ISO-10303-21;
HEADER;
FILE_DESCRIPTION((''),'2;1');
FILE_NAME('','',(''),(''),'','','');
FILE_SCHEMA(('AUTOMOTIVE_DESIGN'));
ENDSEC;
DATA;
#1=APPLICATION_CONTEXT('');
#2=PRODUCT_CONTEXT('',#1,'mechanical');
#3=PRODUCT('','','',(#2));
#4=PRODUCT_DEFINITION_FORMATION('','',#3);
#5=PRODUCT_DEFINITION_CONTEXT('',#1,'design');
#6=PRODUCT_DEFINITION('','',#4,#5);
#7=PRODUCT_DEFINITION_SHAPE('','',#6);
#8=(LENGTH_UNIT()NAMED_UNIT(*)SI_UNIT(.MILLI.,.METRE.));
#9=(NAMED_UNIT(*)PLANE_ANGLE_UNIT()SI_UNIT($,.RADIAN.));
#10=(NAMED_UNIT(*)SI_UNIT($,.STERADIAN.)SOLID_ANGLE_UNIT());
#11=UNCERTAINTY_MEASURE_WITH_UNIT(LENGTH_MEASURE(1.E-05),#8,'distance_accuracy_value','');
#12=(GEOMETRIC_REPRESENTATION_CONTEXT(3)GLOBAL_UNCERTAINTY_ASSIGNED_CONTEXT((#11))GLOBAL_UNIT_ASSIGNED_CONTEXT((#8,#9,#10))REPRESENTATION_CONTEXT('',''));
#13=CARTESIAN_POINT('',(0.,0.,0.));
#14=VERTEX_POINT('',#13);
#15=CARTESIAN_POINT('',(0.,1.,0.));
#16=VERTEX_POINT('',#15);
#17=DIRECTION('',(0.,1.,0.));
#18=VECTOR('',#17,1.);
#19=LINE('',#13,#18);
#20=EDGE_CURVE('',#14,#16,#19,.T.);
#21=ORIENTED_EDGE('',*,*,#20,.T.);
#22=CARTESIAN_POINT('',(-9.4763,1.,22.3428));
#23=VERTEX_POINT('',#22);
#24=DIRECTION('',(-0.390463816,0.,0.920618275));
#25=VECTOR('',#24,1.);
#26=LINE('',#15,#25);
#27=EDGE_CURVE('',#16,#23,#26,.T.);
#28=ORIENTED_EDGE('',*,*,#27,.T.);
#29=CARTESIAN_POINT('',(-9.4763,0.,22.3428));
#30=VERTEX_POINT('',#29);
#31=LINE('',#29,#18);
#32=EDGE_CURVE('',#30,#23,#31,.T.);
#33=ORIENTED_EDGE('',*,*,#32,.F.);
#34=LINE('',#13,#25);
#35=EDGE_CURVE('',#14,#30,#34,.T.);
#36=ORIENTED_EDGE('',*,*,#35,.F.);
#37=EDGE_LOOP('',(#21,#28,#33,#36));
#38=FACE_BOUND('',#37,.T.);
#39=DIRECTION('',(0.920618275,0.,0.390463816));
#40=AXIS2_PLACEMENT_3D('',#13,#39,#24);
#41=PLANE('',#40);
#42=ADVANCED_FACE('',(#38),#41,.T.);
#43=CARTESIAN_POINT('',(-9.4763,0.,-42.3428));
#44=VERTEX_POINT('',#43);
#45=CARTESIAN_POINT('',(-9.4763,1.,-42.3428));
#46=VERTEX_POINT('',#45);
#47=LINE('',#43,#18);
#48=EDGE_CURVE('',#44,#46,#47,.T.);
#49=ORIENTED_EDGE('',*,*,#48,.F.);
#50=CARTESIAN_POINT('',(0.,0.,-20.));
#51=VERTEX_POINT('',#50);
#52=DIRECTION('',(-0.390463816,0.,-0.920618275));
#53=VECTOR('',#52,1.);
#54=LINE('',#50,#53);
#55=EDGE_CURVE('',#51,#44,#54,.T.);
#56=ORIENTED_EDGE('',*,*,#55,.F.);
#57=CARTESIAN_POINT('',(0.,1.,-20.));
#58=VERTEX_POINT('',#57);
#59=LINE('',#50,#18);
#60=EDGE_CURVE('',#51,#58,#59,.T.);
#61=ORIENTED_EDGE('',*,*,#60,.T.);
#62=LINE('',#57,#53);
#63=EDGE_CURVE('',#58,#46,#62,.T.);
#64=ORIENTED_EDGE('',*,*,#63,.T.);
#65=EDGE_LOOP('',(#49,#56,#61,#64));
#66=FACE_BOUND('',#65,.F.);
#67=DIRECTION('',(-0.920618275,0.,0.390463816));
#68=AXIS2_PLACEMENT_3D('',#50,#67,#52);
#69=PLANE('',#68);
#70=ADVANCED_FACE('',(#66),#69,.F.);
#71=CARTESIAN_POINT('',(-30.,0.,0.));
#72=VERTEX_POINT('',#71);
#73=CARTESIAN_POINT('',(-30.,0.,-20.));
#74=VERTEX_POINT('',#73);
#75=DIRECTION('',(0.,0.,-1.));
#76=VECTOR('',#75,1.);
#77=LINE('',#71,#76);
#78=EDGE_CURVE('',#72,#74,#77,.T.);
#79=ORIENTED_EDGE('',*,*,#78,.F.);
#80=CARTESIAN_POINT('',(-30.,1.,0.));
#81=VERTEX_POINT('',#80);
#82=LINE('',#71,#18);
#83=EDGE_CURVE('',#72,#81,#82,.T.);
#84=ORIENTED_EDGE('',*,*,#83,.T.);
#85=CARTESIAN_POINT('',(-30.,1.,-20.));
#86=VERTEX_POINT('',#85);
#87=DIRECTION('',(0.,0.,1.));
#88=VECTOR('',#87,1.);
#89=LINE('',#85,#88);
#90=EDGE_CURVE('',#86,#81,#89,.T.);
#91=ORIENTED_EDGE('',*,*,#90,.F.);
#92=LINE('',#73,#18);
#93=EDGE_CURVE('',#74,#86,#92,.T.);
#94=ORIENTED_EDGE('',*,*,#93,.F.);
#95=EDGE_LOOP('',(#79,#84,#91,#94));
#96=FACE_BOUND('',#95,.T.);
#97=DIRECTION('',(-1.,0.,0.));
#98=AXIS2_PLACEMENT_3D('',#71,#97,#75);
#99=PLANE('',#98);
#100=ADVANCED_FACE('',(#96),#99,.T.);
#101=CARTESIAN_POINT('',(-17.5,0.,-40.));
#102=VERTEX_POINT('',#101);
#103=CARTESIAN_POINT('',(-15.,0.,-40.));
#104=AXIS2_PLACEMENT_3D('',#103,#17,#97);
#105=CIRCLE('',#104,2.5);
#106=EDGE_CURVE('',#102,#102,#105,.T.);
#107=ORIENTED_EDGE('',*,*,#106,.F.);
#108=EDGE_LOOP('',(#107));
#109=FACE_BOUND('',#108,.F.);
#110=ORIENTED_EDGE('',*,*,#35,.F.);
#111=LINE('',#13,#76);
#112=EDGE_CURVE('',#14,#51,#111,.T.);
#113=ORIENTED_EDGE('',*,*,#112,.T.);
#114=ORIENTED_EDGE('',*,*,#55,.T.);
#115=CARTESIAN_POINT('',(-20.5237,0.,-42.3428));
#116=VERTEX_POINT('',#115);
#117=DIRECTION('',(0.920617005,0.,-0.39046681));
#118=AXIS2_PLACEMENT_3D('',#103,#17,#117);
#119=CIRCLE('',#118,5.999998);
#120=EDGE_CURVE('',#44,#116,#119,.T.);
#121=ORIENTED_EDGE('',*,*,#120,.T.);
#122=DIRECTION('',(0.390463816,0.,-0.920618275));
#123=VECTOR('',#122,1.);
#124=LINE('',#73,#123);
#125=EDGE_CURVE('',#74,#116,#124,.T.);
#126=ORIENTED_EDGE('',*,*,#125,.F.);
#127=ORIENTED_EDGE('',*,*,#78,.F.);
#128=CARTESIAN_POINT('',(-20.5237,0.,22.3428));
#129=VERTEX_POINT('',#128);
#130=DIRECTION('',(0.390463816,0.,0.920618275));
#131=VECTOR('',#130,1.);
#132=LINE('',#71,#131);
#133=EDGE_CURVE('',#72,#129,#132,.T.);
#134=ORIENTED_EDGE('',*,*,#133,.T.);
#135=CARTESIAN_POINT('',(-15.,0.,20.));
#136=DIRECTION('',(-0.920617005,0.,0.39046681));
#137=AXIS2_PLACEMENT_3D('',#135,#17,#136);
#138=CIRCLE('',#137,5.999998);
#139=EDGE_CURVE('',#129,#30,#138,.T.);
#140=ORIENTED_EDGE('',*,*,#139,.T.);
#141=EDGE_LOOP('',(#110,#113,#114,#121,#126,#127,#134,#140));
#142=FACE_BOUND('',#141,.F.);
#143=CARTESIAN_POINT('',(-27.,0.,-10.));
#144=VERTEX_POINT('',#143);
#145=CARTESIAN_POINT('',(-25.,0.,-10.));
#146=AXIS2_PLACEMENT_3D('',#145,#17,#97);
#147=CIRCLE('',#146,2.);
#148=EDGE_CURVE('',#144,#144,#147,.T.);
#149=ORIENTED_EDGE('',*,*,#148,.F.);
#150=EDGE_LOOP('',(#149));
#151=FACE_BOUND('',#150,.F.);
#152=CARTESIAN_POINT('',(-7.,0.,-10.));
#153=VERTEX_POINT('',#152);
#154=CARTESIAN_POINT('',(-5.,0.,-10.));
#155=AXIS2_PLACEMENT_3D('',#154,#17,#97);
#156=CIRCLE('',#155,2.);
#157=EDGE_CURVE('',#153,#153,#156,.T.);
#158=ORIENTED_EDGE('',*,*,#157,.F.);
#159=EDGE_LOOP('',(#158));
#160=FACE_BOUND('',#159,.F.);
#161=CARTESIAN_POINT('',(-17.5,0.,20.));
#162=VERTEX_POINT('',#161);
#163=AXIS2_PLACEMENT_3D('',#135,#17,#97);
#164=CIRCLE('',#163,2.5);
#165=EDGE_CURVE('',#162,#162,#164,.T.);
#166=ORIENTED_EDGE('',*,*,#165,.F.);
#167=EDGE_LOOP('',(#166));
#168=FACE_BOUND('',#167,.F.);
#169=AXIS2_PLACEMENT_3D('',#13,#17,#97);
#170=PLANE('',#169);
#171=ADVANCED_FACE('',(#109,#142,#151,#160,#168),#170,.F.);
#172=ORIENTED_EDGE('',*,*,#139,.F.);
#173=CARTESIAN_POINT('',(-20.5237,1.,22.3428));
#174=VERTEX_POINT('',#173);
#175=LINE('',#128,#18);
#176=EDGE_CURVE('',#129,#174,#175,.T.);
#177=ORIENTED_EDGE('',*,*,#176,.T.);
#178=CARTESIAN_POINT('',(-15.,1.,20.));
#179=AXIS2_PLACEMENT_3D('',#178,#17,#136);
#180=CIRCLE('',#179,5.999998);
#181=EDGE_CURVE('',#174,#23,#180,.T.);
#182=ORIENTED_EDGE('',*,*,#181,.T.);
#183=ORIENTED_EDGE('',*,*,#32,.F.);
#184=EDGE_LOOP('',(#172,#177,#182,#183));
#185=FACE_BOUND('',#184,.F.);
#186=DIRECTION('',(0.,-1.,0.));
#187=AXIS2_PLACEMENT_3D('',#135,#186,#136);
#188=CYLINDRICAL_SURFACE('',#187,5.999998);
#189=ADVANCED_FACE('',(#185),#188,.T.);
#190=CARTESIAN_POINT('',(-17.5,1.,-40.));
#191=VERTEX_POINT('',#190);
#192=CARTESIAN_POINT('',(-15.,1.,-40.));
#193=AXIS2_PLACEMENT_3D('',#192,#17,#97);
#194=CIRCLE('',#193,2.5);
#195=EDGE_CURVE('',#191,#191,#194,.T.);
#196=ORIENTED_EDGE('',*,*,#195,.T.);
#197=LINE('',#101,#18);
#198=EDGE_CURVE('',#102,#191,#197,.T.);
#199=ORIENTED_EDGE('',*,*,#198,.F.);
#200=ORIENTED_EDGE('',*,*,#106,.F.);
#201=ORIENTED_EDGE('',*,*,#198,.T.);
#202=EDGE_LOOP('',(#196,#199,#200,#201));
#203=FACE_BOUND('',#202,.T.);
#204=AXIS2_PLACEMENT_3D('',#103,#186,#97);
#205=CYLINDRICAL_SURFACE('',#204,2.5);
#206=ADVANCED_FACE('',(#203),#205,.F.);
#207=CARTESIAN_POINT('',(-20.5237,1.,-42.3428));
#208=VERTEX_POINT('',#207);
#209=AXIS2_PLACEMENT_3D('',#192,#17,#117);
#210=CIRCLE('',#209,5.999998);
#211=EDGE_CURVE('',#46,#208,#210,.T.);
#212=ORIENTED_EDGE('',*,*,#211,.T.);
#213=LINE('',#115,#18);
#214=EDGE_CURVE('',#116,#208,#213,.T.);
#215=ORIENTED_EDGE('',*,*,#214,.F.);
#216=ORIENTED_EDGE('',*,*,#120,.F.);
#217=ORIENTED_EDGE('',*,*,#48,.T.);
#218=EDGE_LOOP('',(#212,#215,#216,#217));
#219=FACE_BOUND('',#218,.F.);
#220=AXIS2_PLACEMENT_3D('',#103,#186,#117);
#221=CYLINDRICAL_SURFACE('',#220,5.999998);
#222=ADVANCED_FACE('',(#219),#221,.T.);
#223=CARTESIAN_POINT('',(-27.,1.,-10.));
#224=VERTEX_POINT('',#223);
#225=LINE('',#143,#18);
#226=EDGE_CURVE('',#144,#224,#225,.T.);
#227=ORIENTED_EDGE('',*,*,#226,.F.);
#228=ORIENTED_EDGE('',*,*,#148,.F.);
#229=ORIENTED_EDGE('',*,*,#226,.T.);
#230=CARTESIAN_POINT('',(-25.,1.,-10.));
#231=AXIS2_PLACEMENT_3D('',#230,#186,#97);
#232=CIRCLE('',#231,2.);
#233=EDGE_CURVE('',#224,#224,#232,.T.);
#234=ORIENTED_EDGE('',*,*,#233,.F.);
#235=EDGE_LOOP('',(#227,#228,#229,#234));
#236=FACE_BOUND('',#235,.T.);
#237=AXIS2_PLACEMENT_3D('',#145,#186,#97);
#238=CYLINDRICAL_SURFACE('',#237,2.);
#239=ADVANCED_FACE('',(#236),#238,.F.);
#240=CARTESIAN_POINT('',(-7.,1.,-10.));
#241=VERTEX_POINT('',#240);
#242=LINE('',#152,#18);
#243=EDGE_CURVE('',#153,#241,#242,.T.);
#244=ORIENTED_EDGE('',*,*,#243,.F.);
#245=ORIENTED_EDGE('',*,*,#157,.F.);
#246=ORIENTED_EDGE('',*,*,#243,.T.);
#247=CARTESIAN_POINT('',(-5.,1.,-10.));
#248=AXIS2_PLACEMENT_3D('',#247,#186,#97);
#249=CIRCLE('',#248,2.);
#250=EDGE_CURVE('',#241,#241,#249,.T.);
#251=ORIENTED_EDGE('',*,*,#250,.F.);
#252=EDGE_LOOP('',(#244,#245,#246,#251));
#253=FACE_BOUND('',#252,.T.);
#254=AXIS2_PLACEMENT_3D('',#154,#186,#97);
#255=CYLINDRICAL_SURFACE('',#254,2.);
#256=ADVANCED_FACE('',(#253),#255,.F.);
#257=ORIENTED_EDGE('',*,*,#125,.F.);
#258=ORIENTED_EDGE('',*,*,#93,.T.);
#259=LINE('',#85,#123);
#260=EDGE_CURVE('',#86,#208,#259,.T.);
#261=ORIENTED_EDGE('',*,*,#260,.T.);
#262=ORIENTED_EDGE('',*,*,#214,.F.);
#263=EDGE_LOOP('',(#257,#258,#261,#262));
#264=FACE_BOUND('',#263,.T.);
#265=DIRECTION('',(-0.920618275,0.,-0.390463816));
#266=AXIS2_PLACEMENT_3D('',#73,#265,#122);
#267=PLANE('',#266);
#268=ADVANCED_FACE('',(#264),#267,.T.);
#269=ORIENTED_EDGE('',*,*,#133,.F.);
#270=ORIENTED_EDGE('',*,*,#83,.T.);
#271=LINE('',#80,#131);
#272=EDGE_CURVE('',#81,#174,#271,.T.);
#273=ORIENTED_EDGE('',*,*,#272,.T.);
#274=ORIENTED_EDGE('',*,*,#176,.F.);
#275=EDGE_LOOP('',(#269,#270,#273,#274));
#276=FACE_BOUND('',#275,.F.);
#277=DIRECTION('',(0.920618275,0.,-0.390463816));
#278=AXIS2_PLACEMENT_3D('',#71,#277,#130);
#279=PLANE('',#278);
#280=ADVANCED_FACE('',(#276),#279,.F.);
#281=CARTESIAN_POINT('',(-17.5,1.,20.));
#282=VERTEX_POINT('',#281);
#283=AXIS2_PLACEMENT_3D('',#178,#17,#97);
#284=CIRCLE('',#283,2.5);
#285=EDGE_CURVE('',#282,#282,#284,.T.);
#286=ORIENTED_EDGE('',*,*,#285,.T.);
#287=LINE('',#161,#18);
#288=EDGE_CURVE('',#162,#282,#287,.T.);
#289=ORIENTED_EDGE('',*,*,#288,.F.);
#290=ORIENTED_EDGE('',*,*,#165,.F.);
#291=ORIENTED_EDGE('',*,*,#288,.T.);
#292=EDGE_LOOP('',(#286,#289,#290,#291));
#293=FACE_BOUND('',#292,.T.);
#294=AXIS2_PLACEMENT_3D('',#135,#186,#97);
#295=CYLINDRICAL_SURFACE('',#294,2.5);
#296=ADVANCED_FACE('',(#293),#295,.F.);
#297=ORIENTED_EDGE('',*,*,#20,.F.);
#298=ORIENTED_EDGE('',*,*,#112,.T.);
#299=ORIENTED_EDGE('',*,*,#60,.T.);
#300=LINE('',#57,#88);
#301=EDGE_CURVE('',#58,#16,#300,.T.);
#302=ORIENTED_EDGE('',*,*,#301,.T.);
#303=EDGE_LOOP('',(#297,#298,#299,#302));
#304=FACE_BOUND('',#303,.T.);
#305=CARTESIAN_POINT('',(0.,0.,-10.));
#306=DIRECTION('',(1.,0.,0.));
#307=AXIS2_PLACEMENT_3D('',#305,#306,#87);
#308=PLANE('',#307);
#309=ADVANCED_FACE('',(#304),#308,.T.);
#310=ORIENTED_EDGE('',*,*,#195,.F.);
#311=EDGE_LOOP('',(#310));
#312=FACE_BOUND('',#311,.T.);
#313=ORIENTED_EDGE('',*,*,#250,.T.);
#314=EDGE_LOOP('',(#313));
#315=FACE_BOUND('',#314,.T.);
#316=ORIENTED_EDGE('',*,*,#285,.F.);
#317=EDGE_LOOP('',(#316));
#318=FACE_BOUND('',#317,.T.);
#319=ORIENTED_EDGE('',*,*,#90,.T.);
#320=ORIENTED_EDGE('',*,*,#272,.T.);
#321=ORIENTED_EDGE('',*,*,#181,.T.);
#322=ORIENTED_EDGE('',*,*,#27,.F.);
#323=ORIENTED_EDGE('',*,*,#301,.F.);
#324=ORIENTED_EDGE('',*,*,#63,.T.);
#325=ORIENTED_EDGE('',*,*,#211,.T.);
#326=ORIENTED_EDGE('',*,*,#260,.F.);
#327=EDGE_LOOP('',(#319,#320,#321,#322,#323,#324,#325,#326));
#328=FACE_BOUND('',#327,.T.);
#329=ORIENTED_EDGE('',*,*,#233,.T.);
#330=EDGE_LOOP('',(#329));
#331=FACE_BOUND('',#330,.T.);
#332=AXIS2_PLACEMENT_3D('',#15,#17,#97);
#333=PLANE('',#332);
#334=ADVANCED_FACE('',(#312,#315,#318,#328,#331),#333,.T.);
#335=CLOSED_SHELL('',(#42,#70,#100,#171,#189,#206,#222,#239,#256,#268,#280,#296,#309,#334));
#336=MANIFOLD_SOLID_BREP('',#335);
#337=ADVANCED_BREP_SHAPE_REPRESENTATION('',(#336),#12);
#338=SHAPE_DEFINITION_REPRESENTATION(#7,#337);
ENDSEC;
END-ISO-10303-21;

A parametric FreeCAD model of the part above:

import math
import FreeCAD as App
import Part
import Sketcher

doc = App.newDocument("Part")
body = doc.addObject("PartDesign::Body", "Body")

# Sketch on XZ plane
sketch1 = doc.addObject("Sketcher::SketchObject", "Sketch")
body.addObject(sketch1)
sketch1.AttachmentSupport = (doc.XZ_Plane, [""])
sketch1.MapMode = "FlatFace"
sketch1.addGeometry([
    Part.LineSegment(App.Vector(-9.5, 22.3, 0), App.Vector(0, 0, 0)),  # 0
    Part.LineSegment(App.Vector(0, 0, 0), App.Vector(0, -20, 0)),  # 1
    Part.LineSegment(App.Vector(0, -20, 0), App.Vector(-9.5, -42.3, 0)),  # 2
    Part.ArcOfCircle(Part.Circle(App.Vector(-15, -40, 0), App.Vector(0, 0, 1), 6), math.radians(-157), math.radians(-23)),  # 3
    Part.LineSegment(App.Vector(-20.5, -42.3, 0), App.Vector(-30, -20, 0)),  # 4
    Part.LineSegment(App.Vector(-30, -20, 0), App.Vector(-30, 0, 0)),  # 5
    Part.LineSegment(App.Vector(-30, 0, 0), App.Vector(-20.5, 22.3, 0)),  # 6
    Part.ArcOfCircle(Part.Circle(App.Vector(-15, 20, 0), App.Vector(0, 0, 1), 6), math.radians(23), math.radians(157)),  # 7
    Part.Circle(App.Vector(-15, 20, 0), App.Vector(0, 0, 1), 2.5),  # 8
    Part.Circle(App.Vector(-25, -10, 0), App.Vector(0, 0, 1), 2),  # 9
    Part.Circle(App.Vector(-5, -10, 0), App.Vector(0, 0, 1), 2),  # 10
    Part.Circle(App.Vector(-15, -40, 0), App.Vector(0, 0, 1), 2.5),  # 11
], False)
sketch1.addConstraint([
    Sketcher.Constraint("Coincident", 0, 2, 1, 1),
    Sketcher.Constraint("Coincident", 1, 2, 2, 1),
    Sketcher.Constraint("Tangent", 2, 2, 3, 2),
    Sketcher.Constraint("Tangent", 3, 1, 4, 1),
    Sketcher.Constraint("Coincident", 4, 2, 5, 1),
    Sketcher.Constraint("Coincident", 5, 2, 6, 1),
    Sketcher.Constraint("Tangent", 6, 2, 7, 2),
    Sketcher.Constraint("Tangent", 7, 1, 0, 1),
    Sketcher.Constraint("Vertical", 1),
    Sketcher.Constraint("Vertical", 5),
    Sketcher.Constraint("Coincident", 0, 2, -1, 1),
    Sketcher.Constraint("Coincident", 8, 3, 7, 3),
    Sketcher.Constraint("Coincident", 11, 3, 3, 3),
    Sketcher.Constraint("Equal", 3, 7),
    Sketcher.Constraint("Equal", 9, 10),
    Sketcher.Constraint("Equal", 8, 11),
    Sketcher.Constraint("PointOnObject", 5, 2, -1),
    Sketcher.Constraint("Parallel", 0, 4),
    Sketcher.Constraint("Parallel", 2, 6),
    Sketcher.Constraint("Horizontal", 9, 3, 10, 3),
    Sketcher.Constraint("Horizontal", 2, 2, 3, 1),
    Sketcher.Constraint("Horizontal", 1, 2, 4, 2),
    Sketcher.Constraint("Diameter", 8, 5.0),
    Sketcher.Constraint("Diameter", 9, 4.0),
    Sketcher.Constraint("Radius", 3, 6.0),
    Sketcher.Constraint("DistanceY", 1, 2, 1, 1, 20.0),
    Sketcher.Constraint("DistanceY", -1, 1, 7, 3, 20.0),
    Sketcher.Constraint("DistanceX", 10, 3, -1, 1, 5.0),
    Sketcher.Constraint("DistanceX", 4, 2, -1, 1, 30.0),
    Sketcher.Constraint("DistanceY", 3, 3, 9, 3, 30.0),
    Sketcher.Constraint("DistanceX", 9, 3, 10, 3, 20.0),
])
pad1 = doc.addObject("PartDesign::Pad", "Pad")
body.addObject(pad1)
pad1.Profile = sketch1
pad1.Length = 1
pad1.Reversed = True

doc.recompute()
